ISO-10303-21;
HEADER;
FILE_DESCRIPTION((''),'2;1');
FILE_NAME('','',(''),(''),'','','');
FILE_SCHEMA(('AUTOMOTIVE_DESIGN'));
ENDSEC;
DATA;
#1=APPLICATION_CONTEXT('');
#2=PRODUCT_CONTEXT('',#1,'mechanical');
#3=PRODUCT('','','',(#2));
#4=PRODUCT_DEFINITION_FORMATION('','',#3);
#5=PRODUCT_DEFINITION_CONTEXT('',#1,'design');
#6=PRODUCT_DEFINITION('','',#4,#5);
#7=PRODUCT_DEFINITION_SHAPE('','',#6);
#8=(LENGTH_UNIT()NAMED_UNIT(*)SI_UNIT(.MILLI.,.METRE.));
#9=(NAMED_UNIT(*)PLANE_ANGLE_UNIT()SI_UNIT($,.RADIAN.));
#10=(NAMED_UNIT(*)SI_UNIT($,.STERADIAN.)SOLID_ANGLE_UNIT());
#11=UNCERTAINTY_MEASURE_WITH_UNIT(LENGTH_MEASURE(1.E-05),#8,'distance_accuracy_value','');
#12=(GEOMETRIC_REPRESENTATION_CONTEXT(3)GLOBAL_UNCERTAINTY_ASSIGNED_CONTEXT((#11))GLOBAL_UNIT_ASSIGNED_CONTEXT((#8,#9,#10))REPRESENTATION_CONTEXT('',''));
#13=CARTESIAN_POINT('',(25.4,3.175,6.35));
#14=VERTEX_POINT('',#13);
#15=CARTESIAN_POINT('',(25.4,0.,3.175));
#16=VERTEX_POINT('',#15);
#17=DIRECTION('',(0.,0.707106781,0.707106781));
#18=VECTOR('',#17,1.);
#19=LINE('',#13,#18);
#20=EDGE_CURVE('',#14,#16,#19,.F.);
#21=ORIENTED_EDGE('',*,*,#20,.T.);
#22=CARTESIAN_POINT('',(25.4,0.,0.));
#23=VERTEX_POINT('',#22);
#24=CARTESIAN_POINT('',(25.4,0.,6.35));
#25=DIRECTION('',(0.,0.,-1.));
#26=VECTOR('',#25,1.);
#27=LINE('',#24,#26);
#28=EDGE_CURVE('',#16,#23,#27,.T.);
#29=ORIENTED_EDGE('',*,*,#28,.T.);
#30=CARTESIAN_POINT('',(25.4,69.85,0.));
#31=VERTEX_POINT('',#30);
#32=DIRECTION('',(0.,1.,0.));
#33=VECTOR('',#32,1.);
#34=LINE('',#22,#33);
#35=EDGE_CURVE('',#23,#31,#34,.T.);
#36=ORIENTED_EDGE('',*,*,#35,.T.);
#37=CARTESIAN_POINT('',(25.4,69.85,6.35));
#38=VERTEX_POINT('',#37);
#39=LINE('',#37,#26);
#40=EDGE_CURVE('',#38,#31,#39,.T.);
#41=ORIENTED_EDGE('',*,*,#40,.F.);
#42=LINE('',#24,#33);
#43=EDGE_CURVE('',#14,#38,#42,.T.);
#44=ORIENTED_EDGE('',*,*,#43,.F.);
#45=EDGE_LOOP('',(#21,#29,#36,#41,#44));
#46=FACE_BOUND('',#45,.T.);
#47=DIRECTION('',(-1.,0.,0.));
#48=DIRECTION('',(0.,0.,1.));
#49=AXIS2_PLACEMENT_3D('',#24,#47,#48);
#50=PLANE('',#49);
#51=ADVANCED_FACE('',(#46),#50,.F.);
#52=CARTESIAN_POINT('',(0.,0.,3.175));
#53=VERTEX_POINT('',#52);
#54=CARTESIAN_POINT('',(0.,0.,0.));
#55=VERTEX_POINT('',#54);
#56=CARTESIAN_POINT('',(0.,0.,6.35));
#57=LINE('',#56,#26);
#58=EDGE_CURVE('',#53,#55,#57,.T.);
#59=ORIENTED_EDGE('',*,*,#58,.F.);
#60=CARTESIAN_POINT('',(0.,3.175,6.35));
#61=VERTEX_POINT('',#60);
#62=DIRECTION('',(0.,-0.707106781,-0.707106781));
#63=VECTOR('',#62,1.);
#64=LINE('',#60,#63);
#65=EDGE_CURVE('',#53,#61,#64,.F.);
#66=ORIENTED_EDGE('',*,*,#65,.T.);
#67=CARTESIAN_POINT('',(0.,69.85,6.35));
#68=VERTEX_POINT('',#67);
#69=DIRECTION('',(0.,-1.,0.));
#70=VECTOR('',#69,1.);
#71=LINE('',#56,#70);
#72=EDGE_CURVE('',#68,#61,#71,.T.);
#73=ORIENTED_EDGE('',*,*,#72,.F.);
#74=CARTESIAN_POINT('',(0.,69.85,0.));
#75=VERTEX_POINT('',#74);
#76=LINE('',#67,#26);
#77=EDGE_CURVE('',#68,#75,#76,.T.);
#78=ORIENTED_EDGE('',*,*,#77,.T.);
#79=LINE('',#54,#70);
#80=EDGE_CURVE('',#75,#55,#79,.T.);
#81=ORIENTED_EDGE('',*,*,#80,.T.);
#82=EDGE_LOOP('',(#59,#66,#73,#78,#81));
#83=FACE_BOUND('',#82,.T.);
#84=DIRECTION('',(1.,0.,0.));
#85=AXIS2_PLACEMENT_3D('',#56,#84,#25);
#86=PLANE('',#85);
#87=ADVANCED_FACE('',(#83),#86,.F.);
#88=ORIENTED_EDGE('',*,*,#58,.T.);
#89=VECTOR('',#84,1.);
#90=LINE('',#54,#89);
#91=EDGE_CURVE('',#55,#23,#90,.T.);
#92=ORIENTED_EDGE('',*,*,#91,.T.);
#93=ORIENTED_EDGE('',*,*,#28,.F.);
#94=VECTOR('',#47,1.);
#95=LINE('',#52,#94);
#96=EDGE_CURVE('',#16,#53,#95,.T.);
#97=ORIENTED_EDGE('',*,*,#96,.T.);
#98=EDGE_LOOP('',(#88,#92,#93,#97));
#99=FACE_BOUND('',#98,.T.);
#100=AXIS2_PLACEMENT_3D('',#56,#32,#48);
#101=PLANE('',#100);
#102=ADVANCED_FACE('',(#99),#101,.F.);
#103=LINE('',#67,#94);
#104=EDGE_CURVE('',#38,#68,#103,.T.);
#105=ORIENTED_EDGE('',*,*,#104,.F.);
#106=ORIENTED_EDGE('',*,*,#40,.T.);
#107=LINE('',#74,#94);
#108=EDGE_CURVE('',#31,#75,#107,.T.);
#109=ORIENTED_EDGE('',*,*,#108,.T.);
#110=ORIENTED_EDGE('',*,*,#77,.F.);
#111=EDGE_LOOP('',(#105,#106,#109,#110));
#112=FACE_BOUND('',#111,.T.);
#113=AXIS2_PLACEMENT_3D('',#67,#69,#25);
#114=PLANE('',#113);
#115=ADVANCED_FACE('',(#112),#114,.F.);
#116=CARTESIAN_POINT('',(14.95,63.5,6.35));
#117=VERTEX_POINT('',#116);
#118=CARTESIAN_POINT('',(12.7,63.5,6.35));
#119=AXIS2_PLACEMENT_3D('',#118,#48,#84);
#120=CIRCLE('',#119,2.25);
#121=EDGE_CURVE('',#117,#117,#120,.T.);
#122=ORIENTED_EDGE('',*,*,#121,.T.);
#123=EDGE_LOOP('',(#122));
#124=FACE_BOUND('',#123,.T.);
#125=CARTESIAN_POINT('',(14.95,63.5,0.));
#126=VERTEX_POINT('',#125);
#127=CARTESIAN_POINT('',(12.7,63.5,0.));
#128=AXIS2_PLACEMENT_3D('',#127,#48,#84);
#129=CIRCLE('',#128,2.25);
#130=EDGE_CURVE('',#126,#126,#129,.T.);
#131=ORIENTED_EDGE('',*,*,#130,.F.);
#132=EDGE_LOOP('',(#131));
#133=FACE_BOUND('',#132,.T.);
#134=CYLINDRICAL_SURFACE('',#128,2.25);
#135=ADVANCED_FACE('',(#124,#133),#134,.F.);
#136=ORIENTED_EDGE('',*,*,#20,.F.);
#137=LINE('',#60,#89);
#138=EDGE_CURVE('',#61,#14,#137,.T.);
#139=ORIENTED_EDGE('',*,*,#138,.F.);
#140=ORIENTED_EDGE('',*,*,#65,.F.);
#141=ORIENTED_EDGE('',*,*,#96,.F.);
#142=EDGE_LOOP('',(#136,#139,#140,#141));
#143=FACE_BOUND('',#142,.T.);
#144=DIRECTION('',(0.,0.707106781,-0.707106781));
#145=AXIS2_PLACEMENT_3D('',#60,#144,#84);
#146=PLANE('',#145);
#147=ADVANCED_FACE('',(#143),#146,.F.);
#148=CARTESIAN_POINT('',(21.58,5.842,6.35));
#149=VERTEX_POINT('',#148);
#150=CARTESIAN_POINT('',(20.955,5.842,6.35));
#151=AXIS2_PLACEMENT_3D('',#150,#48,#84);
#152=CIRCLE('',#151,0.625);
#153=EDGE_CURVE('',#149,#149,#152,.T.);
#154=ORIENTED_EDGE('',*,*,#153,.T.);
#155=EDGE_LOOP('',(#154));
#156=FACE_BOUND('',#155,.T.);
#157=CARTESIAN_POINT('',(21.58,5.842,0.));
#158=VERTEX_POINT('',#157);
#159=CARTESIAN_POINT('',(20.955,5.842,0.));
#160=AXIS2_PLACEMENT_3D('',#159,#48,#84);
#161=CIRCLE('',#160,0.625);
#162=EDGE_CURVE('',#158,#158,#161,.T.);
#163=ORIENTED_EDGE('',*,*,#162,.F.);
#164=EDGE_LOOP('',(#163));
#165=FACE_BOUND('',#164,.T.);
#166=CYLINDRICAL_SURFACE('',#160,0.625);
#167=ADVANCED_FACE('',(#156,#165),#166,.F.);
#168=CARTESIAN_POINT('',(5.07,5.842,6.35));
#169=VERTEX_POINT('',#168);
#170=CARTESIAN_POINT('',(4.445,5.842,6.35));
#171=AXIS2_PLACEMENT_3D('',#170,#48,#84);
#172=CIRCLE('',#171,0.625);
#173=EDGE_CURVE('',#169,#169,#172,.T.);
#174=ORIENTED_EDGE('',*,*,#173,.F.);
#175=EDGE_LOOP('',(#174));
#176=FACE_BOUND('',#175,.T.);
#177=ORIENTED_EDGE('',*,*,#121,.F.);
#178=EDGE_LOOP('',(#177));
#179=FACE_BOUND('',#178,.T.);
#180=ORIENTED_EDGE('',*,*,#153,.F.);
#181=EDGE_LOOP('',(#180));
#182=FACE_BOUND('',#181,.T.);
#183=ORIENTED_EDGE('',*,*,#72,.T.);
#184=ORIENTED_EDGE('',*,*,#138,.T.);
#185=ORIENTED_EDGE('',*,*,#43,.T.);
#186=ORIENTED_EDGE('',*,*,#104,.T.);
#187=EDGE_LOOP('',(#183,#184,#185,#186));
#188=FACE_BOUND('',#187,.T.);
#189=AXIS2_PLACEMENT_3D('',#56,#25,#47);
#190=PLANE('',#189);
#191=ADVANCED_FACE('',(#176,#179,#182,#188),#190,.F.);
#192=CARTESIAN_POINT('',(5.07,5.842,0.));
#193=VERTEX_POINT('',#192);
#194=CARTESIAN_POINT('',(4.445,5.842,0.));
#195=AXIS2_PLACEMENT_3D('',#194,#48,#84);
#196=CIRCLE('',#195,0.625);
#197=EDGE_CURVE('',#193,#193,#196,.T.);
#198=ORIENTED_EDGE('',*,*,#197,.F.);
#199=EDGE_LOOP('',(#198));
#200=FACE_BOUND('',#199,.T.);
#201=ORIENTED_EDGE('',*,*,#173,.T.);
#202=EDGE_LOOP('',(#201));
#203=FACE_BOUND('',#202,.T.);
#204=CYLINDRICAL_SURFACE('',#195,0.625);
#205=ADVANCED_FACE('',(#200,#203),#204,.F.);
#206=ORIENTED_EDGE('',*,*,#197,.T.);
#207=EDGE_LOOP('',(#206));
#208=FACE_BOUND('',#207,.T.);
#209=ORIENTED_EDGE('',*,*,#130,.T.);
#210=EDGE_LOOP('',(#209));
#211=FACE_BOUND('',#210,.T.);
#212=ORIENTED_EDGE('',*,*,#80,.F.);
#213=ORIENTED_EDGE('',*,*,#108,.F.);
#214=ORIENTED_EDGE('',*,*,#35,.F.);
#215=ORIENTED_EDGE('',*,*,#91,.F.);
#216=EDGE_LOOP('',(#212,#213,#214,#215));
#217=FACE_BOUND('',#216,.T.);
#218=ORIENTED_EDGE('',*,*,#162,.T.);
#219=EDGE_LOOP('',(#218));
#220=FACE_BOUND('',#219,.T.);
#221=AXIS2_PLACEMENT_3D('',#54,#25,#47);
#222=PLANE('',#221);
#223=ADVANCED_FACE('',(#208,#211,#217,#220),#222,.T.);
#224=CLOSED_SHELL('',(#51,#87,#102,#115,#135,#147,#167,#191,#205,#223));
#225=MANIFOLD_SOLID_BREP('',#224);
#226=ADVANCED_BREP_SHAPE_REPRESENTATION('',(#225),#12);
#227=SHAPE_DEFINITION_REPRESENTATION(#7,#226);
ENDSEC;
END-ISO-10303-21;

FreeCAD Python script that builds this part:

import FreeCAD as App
import Part
import Sketcher
Q = App.Units.Quantity


def edges_at(feature, points):
    """Names of the edges that pass closest to the given points."""
    edges = feature.Shape.Edges
    near = lambda p: min(range(len(edges)), key=lambda i: edges[i].distToShape(Part.Vertex(*p))[0])
    return sorted({f"Edge{near(p) + 1}" for p in points})


def add_polygon(sketch, points):
    """Adds a closed chain of lines whose ends are joined by coincident constraints."""
    first, n = sketch.GeometryCount, len(points)
    for a, b in zip(points, points[1:] + points[:1]):
        sketch.addGeometry(Part.LineSegment(App.Vector(*a, 0), App.Vector(*b, 0)), False)
    for i in range(n):
        sketch.addConstraint(Sketcher.Constraint("Coincident", first + i, 2, first + (i + 1) % n, 1))

doc = App.newDocument("Part")
body = doc.addObject("PartDesign::Body", "Body")

sketch1 = doc.addObject("Sketcher::SketchObject", "Sketch")
body.addObject(sketch1)
sketch1.AttachmentSupport = (doc.XY_Plane, [""])
sketch1.MapMode = "FlatFace"
add_polygon(sketch1, [(0, 70), (0, 0), (25, 0), (25, 70)])
sketch1.addConstraint(Sketcher.Constraint("Vertical", 0))
sketch1.addConstraint(Sketcher.Constraint("Horizontal", 1))
sketch1.addConstraint(Sketcher.Constraint("Vertical", 2))
sketch1.addConstraint(Sketcher.Constraint("Horizontal", 3))
sketch1.addConstraint(Sketcher.Constraint("Coincident", 0, 2, -1, 1))
sketch1.addConstraint(Sketcher.Constraint("DistanceX", 1, 1, 1, 2, Q("1 in")))
sketch1.addConstraint(Sketcher.Constraint("DistanceY", 0, 2, 0, 1, Q("2.75 in")))
pad1 = doc.addObject("PartDesign::Pad", "Pad")
body.addObject(pad1)
pad1.Profile = sketch1
pad1.Length = Q("0.25 in")

sketch2 = doc.addObject("Sketcher::SketchObject", "Sketch001")
body.addObject(sketch2)
sketch2.AttachmentSupport = (doc.XY_Plane, [""])
sketch2.MapMode = "FlatFace"
sketch2.AttachmentOffset = App.Placement(App.Vector(0, 0, 0.25 * 25.4), App.Rotation())
sketch2.addGeometry(Part.Circle(App.Vector(12.7, 63.5, 0), App.Vector(0, 0, 1), 2.2), False)
sketch2.addGeometry(Part.Circle(App.Vector(4.4, 5.8, 0), App.Vector(0, 0, 1), 0.6), False)
sketch2.addGeometry(Part.Circle(App.Vector(21, 5.8, 0), App.Vector(0, 0, 1), 0.6), False)
sketch2.addConstraint(Sketcher.Constraint("Equal", 1, 2))
sketch2.addConstraint(Sketcher.Constraint("Horizontal", 1, 3, 2, 3))
sketch2.addConstraint(Sketcher.Constraint("DistanceX", -1, 1, 0, 3, Q("0.5 in")))
sketch2.addConstraint(Sketcher.Constraint("DistanceY", -1, 1, 0, 3, Q("2.5 in")))
sketch2.addConstraint(Sketcher.Constraint("Diameter", 0, 4.5))
sketch2.addConstraint(Sketcher.Constraint("Diameter", 1, 1.25))
sketch2.addConstraint(Sketcher.Constraint("DistanceY", -1, 1, 1, 3, Q("0.23 in")))
sketch2.addConstraint(Sketcher.Constraint("DistanceX", 1, 3, 2, 3, Q("0.65 in")))
sketch2.addConstraint(Sketcher.Constraint("DistanceX", -1, 1, 1, 3, Q("0.175 in")))
pocket1 = doc.addObject("PartDesign::Pocket", "Pocket")
body.addObject(pocket1)
pocket1.Profile = sketch2
pocket1.Length = Q("0.25 in")
doc.recompute()

chamfer = doc.addObject("PartDesign::Chamfer", "Chamfer")
body.addObject(chamfer)
chamfer.Base = (pocket1, edges_at(pocket1, [(12.7, 0, 6.35)]))
chamfer.Size = Q("0.125 in")

doc.recompute()
